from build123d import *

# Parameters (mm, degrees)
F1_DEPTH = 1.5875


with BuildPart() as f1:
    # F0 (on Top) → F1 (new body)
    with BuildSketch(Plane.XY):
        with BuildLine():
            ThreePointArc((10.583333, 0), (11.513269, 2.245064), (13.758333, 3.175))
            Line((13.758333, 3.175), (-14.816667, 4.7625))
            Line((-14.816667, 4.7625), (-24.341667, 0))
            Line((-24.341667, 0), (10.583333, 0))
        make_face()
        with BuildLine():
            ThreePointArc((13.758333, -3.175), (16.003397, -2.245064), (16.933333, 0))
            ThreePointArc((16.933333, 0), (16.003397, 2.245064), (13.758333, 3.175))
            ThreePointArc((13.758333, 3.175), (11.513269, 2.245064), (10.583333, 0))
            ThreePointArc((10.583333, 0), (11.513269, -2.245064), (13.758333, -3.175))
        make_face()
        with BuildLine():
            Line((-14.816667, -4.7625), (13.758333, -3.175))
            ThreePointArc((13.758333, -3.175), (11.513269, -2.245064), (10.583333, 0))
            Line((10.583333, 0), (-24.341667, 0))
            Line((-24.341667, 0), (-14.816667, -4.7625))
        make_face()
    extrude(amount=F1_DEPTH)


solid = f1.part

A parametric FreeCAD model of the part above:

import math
import FreeCAD as App
import Part
import Sketcher
Q = App.Units.Quantity

doc = App.newDocument("Part")
params = doc.addObject("Spreadsheet::Sheet", "Params")
for row, (alias, value) in enumerate([
    ("sketch1_radius", "0.125 in"),
    ("pad1_length", "0.0625 in"),
], start=1):
    params.set(f"A{row}", alias)
    params.set(f"B{row}", "=" + value)
    params.setAlias(f"B{row}", alias)

body = doc.addObject("PartDesign::Body", "Body")

sketch1 = body.newObject("Sketcher::SketchObject", "Sketch")
sketch1.AttachmentSupport = (doc.getObject("XY_Plane"), [""])
sketch1.MapMode = "FlatFace"
sketch1.addGeometry(Part.LineSegment(App.Vector(13.8, 3.2, 0), App.Vector(-14.8, 4.8, 0)), False)
sketch1.addGeometry(Part.LineSegment(App.Vector(-14.8, 4.8, 0), App.Vector(-24.3, 0, 0)), False)
sketch1.addGeometry(Part.LineSegment(App.Vector(-24.3, 0, 0), App.Vector(-14.8, -4.8, 0)), False)
sketch1.addGeometry(Part.LineSegment(App.Vector(-14.8, -4.8, 0), App.Vector(13.8, -3.2, 0)), False)
sketch1.addGeometry(Part.ArcOfCircle(Part.Circle(App.Vector(13.8, 0, 0), App.Vector(0, 0, 1), 3.2), math.radians(-90), math.radians(0)), False)
sketch1.addGeometry(Part.ArcOfCircle(Part.Circle(App.Vector(13.8, 0, 0), App.Vector(0, 0, 1), 3.2), math.radians(0), math.radians(90)), False)
sketch1.addConstraint(Sketcher.Constraint("Coincident", 0, 2, 1, 1))
sketch1.addConstraint(Sketcher.Constraint("Coincident", 1, 2, 2, 1))
sketch1.addConstraint(Sketcher.Constraint("Coincident", 2, 2, 3, 1))
sketch1.addConstraint(Sketcher.Constraint("Coincident", 3, 2, 4, 1))
sketch1.addConstraint(Sketcher.Constraint("Tangent", 4, 2, 5, 1))
sketch1.addConstraint(Sketcher.Constraint("Coincident", 5, 2, 0, 1))
sketch1.addConstraint(Sketcher.Constraint("Equal", 4, 5))
sketch1.addConstraint(Sketcher.Constraint("Symmetric", 0, 2, 2, 2, -1))
sketch1.addConstraint(Sketcher.Constraint("Symmetric", 3, 2, 5, 2, -1))
sketch1.addConstraint(Sketcher.Constraint("PointOnObject", 1, 2, -1))
sketch1.addConstraint(Sketcher.Constraint("PointOnObject", 4, 2, -1))
sketch1.addConstraint(Sketcher.Constraint("Vertical", 5, 3, 3, 2))
sketch1.addConstraint(Sketcher.Constraint("Radius", 4, Q("0.125 in")))
sketch1.addConstraint(Sketcher.Constraint("DistanceX", 1, 2, 4, 3, Q("1.5 in")))
sketch1.addConstraint(Sketcher.Constraint("DistanceX", 0, 2, 4, 2, Q("1.25 in")))
sketch1.addConstraint(Sketcher.Constraint("DistanceY", -1, 1, 0, 2, Q("0.1875 in")))
sketch1.addConstraint(Sketcher.Constraint("DistanceX", -1, 1, 4, 3, Q("13.758333 mm")))
sketch1.setExpression("Constraints[12]", "Params.sketch1_radius")
pad1 = body.newObject("PartDesign::Pad", "Pad")
pad1.Profile = sketch1
pad1.setExpression("Length", "Params.pad1_length")

doc.recompute()
